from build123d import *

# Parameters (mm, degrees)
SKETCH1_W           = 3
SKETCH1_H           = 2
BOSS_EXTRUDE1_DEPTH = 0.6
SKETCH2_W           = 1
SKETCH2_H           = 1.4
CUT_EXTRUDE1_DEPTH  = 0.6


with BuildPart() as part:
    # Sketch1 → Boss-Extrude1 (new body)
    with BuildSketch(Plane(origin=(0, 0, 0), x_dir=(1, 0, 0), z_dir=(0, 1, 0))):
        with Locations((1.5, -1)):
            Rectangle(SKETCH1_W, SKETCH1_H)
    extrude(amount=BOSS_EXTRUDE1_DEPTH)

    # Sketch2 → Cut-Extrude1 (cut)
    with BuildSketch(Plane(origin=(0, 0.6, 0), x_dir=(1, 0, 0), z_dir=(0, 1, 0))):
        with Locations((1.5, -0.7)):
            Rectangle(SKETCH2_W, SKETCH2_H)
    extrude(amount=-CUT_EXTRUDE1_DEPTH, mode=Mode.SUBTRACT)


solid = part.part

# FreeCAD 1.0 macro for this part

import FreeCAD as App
import Part
import Sketcher

V = App.Vector


def add_polygon(sketch, points):
    """Adds a closed chain of lines whose ends are joined by coincident constraints."""
    first, n = sketch.GeometryCount, len(points)
    for a, b in zip(points, points[1:] + points[:1]):
        sketch.addGeometry(Part.LineSegment(App.Vector(*a, 0), App.Vector(*b, 0)), False)
    for i in range(n):
        sketch.addConstraint(Sketcher.Constraint("Coincident", first + i, 2, first + (i + 1) % n, 1))

doc = App.newDocument("Part")
body = doc.addObject("PartDesign::Body", "Body")

# Sketch on XZ plane
sketch1 = body.newObject("Sketcher::SketchObject", "Sketch")
sketch1.AttachmentSupport = (doc.getObject("XZ_Plane"), [""])
sketch1.MapMode = "FlatFace"
add_polygon(sketch1, [(0, 0), (0, 2), (3, 2), (3, 0)])  # lines 0-3
sketch1.addConstraint(Sketcher.Constraint("Vertical", 0))
sketch1.addConstraint(Sketcher.Constraint("Horizontal", 1))
sketch1.addConstraint(Sketcher.Constraint("Vertical", 2))
sketch1.addConstraint(Sketcher.Constraint("Horizontal", 3))
sketch1.addConstraint(Sketcher.Constraint("Coincident", 3, 2, -1, 1))
sketch1.addConstraint(Sketcher.Constraint("DistanceX", 1, 1, 1, 2, 3.0))
sketch1.addConstraint(Sketcher.Constraint("DistanceY", 0, 1, 0, 2, 2.0))
pad1 = body.newObject("PartDesign::Pad", "Pad")
pad1.Profile = sketch1
pad1.Length = 0.6
pad1.Reversed = True

# Sketch on XZ plane
sketch2 = body.newObject("Sketcher::SketchObject", "Sketch001")
sketch2.AttachmentSupport = (doc.getObject("XZ_Plane"), [""])
sketch2.MapMode = "FlatFace"
sketch2.AttachmentOffset = App.Placement(V(0, 0, -0.6), App.Rotation())
add_polygon(sketch2, [(1, 0), (1, 1.4), (2, 1.4), (2, 0)])  # lines 0-3
sketch2.addConstraint(Sketcher.Constraint("Vertical", 0))
sketch2.addConstraint(Sketcher.Constraint("Horizontal", 1))
sketch2.addConstraint(Sketcher.Constraint("Vertical", 2))
sketch2.addConstraint(Sketcher.Constraint("Horizontal", 3))
sketch2.addConstraint(Sketcher.Constraint("PointOnObject", 2, 2, -1))
sketch2.addConstraint(Sketcher.Constraint("DistanceX", 1, 1, 1, 2, 1.0))
sketch2.addConstraint(Sketcher.Constraint("DistanceY", 0, 1, 0, 2, 1.4))
sketch2.addConstraint(Sketcher.Constraint("DistanceX", -1, 1, 0, 2, 1.0))
pocket1 = body.newObject("PartDesign::Pocket", "Pocket")
pocket1.Profile = sketch2
pocket1.Length = 0.6
pocket1.Reversed = True

doc.recompute()
